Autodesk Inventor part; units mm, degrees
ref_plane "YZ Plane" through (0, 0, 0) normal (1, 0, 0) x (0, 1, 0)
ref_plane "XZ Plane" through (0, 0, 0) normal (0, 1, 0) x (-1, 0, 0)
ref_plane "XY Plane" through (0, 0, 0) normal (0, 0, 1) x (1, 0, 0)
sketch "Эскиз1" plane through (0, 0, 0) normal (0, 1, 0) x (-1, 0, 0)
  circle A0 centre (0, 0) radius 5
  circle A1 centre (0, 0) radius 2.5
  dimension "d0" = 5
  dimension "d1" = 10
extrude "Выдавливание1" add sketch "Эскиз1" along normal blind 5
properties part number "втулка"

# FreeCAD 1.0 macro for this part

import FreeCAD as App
import Part
import Sketcher

V = App.Vector

doc = App.newDocument("Part")
params = doc.addObject("Spreadsheet::Sheet", "Params")
for row, (alias, value) in enumerate([
    ("sketch1_diameter", "10 mm"),
    ("sketch1_diameter2", "5 mm"),
    ("pad1_length", "5 mm"),
], start=1):
    params.set(f"A{row}", alias)
    params.set(f"B{row}", "=" + value)
    params.setAlias(f"B{row}", alias)

body = doc.addObject("PartDesign::Body", "Body")

sketch1 = body.newObject("Sketcher::SketchObject", "Sketch")
sketch1.AttachmentSupport = (doc.getObject("XZ_Plane"), [""])
sketch1.MapMode = "FlatFace"
sketch1.addGeometry(Part.Circle(V(0, 0, 0), V(0, 0, 1), 5), False)
sketch1.addGeometry(Part.Circle(V(0, 0, 0), V(0, 0, 1), 2.5), False)
sketch1.addConstraint(Sketcher.Constraint("Coincident", 0, 3, -1, 1))
sketch1.addConstraint(Sketcher.Constraint("Coincident", 1, 3, -1, 1))
sketch1.addConstraint(Sketcher.Constraint("Diameter", 0, 10.0))
sketch1.addConstraint(Sketcher.Constraint("Diameter", 1, 5.0))
sketch1.setExpression("Constraints[2]", "Params.sketch1_diameter")
sketch1.setExpression("Constraints[3]", "Params.sketch1_diameter2")
pad1 = body.newObject("PartDesign::Pad", "Pad")
pad1.Profile = sketch1
pad1.setExpression("Length", "Params.pad1_length")
pad1.Reversed = True

doc.recompute()
